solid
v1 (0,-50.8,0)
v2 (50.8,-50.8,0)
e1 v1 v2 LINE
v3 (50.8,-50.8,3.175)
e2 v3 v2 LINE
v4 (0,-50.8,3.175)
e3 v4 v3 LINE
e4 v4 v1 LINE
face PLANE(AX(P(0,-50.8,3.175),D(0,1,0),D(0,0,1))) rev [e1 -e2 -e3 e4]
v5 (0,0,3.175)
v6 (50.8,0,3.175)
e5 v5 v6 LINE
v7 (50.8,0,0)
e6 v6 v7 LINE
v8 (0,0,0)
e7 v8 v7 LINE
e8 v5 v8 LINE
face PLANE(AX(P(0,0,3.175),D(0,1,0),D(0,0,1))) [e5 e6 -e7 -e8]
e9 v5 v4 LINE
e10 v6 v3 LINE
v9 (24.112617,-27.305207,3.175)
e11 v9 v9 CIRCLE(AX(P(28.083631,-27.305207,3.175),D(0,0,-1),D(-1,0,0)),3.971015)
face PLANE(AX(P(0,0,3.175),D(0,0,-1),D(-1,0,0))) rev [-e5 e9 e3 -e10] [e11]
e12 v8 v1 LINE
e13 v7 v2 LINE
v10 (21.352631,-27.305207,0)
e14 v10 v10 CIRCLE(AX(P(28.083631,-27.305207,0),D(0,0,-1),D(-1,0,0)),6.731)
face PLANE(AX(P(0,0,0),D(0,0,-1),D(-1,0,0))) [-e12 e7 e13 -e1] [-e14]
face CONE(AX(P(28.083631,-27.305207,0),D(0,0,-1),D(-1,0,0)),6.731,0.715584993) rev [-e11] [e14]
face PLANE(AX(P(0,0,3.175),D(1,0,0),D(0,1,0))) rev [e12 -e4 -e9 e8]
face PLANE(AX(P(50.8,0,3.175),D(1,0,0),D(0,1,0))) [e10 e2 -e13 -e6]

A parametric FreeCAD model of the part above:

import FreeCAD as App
import Part
import Sketcher
Q = App.Units.Quantity


def add_polygon(sketch, points):
    """Adds a closed chain of lines whose ends are joined by coincident constraints."""
    first, n = sketch.GeometryCount, len(points)
    for a, b in zip(points, points[1:] + points[:1]):
        sketch.addGeometry(Part.LineSegment(App.Vector(*a, 0), App.Vector(*b, 0)), False)
    for i in range(n):
        sketch.addConstraint(Sketcher.Constraint("Coincident", first + i, 2, first + (i + 1) % n, 1))

doc = App.newDocument("Part")
body = doc.addObject("PartDesign::Body", "Body")

sketch1 = body.newObject("Sketcher::SketchObject", "Sketch")
sketch1.AttachmentSupport = (doc.getObject("XY_Plane"), [""])
sketch1.MapMode = "FlatFace"
add_polygon(sketch1, [(0, 0), (0, -51), (51, -51), (51, 0)])
sketch1.addConstraint([
    Sketcher.Constraint("Vertical", 0),
    Sketcher.Constraint("Horizontal", 1),
    Sketcher.Constraint("Vertical", 2),
    Sketcher.Constraint("Horizontal", 3),
    Sketcher.Constraint("Coincident", 3, 2, -1, 1),
    Sketcher.Constraint("Equal", 3, 0),
    Sketcher.Constraint("DistanceX", 1, 1, 1, 2, Q("2 in")),
])
pad1 = body.newObject("PartDesign::Pad", "Pad")
pad1.Profile = sketch1
pad1.Length = Q("0.125 in")

sketch2 = body.newObject("Sketcher::SketchObject", "Sketch001")
sketch2.AttachmentSupport = (doc.getObject("YZ_Plane"), [""])
sketch2.MapMode = "FlatFace"
sketch2.AttachmentOffset = App.Placement(App.Vector(0, 0, 28.083631), App.Rotation())
add_polygon(sketch2, [(-27.3, 3.2), (-27.3, 0), (-20.6, 0), (-24.1, 4.1), (-24.1, 3.2)])
sketch2.addGeometry(Part.LineSegment(App.Vector(-27.3, 0, 0), App.Vector(-27.3, 4.1, 0)), True)
sketch2.addConstraint([
    Sketcher.Constraint("Vertical", 0),
    Sketcher.Constraint("Horizontal", 1),
    Sketcher.Constraint("Vertical", 3),
    Sketcher.Constraint("Horizontal", 4),
    Sketcher.Constraint("Vertical", 5),
    Sketcher.Constraint("Coincident", 5, 1, 0, 2),
    Sketcher.Constraint("PointOnObject", 0, 2, -1),
    Sketcher.Constraint("Horizontal", 2, 2, 5, 2),
    Sketcher.Constraint("Equal", 4, 0),
    Sketcher.Constraint("Angle", 2, Q("131 deg")),
    Sketcher.Constraint("DistanceX", 1, 1, 1, 2, Q("0.265 in")),
    Sketcher.Constraint("DistanceX", 4, 2, 4, 1, Q("0.125 in")),
    Sketcher.Constraint("DistanceX", 0, 2, -1, 1, 27.305207),
])
groove = body.newObject("PartDesign::Groove", "Groove")
groove.Profile = sketch2
groove.ReferenceAxis = (sketch2, ["Axis0"])
groove.Angle = 360

doc.recompute()
